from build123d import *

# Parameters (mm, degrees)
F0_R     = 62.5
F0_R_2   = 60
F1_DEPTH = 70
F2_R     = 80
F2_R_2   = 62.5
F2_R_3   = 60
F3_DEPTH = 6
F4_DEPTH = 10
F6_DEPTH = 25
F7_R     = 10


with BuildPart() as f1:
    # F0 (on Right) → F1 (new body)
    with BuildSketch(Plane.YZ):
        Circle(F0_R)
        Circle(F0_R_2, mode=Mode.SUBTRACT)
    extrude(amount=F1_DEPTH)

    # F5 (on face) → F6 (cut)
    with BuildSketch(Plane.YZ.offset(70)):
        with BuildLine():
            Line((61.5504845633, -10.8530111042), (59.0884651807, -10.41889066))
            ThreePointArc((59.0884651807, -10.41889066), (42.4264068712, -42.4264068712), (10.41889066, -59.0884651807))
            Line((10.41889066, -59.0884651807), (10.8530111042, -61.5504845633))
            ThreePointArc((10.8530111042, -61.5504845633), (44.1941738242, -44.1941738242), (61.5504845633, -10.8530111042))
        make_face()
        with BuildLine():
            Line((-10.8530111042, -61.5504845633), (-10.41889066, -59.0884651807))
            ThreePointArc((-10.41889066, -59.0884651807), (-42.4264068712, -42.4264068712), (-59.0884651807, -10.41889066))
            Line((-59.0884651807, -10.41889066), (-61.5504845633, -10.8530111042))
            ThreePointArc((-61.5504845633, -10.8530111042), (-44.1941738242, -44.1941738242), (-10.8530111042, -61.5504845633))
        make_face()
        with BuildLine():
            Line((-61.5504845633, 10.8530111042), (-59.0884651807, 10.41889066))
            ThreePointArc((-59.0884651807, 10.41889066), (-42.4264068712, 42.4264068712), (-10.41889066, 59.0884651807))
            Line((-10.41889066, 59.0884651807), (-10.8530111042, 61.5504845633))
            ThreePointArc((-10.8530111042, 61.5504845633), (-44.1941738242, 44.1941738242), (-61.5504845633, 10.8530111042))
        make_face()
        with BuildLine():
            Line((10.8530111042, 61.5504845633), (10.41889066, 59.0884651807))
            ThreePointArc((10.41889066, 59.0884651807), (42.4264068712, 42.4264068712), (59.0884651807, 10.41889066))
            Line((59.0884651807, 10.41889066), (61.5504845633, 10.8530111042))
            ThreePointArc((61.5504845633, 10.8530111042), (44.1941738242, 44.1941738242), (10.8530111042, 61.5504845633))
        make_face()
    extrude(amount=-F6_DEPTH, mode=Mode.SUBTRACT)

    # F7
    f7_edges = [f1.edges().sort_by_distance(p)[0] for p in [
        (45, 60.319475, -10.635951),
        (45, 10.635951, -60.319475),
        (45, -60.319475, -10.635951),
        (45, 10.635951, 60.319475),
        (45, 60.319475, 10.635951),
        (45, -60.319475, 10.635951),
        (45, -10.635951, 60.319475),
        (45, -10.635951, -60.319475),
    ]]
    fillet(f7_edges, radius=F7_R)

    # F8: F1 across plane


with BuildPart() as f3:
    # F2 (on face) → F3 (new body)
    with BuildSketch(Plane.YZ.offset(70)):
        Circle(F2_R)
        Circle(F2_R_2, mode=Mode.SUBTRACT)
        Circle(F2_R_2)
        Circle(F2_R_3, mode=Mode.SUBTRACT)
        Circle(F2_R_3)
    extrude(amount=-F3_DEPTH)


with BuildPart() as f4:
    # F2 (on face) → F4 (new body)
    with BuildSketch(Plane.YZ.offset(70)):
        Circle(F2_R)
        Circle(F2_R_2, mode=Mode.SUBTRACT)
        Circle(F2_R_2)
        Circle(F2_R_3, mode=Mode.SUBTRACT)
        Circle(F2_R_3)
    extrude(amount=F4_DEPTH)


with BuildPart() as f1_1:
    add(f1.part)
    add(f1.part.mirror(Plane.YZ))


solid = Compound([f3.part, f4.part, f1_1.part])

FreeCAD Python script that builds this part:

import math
import FreeCAD as App
import Part
import Sketcher
Q = App.Units.Quantity


def edges_at(feature, points):
    """Names of the edges that pass closest to the given points."""
    edges = feature.Shape.Edges
    near = lambda p: min(range(len(edges)), key=lambda i: edges[i].distToShape(Part.Vertex(*p))[0])
    return sorted({f"Edge{near(p) + 1}" for p in points})

doc = App.newDocument("Part")
params = doc.addObject("Spreadsheet::Sheet", "Params")
for row, (alias, value) in enumerate([
    ("sketch1_diameter", "125 mm"),
    ("sketch1_diameter2", "120 mm"),
    ("pad1_length", "70 mm"),
    ("sketch2_radius", "60 mm"),
    ("sketch2_radius2", "62.5 mm"),
    ("pocket1_length", "25 mm"),
    ("fillet_radius", "10 mm"),
    ("sketch3_diameter", "160 mm"),
    ("pad2_length", "6 mm"),
    ("sketch4_diameter", "160 mm"),
    ("pad3_length", "10 mm"),
], start=1):
    params.set(f"A{row}", alias)
    params.set(f"B{row}", "=" + value)
    params.setAlias(f"B{row}", alias)

body = doc.addObject("PartDesign::Body", "Body")

# Sketch on YZ plane
sketch1 = doc.addObject("Sketcher::SketchObject", "Sketch")
body.addObject(sketch1)
sketch1.AttachmentSupport = (doc.YZ_Plane, [""])
sketch1.MapMode = "FlatFace"
sketch1.addGeometry([
    Part.Circle(App.Vector(0, 0, 0), App.Vector(0, 0, 1), 62),
    Part.Circle(App.Vector(0, 0, 0), App.Vector(0, 0, 1), 60),
], False)
sketch1.addConstraint([
    Sketcher.Constraint("Coincident", 0, 3, -1, 1),
    Sketcher.Constraint("Coincident", 1, 3, -1, 1),
    Sketcher.Constraint("Diameter", 0, 125.0),
    Sketcher.Constraint("Diameter", 1, 120.0),
])
sketch1.setExpression("Constraints[2]", "Params.sketch1_diameter")
sketch1.setExpression("Constraints[3]", "Params.sketch1_diameter2")
pad1 = doc.addObject("PartDesign::Pad", "Pad")
body.addObject(pad1)
pad1.Profile = sketch1
pad1.setExpression("Length", "Params.pad1_length")

# Sketch on YZ plane
sketch2 = doc.addObject("Sketcher::SketchObject", "Sketch001")
body.addObject(sketch2)
sketch2.AttachmentSupport = (doc.YZ_Plane, [""])
sketch2.MapMode = "FlatFace"
sketch2.AttachmentOffset = App.Placement(App.Vector(0, 0, 70), App.Rotation())
sketch2.addGeometry([
    Part.LineSegment(App.Vector(61.6, -10.9, 0), App.Vector(59.1, -10.4, 0)),  # 0
    Part.ArcOfCircle(Part.Circle(App.Vector(0, 0, 0), App.Vector(0, 0, 1), 60), math.radians(-80), math.radians(-10)),  # 1
    Part.LineSegment(App.Vector(10.4, -59.1, 0), App.Vector(10.9, -61.6, 0)),  # 2
    Part.ArcOfCircle(Part.Circle(App.Vector(0, 0, 0), App.Vector(0, 0, 1), 62.5), math.radians(-80), math.radians(-10)),  # 3
    Part.LineSegment(App.Vector(-10.9, -61.6, 0), App.Vector(-10.4, -59.1, 0)),  # 4
    Part.ArcOfCircle(Part.Circle(App.Vector(0, 0, 0), App.Vector(0, 0, 1), 60), math.radians(-170), math.radians(-100)),  # 5
    Part.LineSegment(App.Vector(-59.1, -10.4, 0), App.Vector(-61.6, -10.9, 0)),  # 6
    Part.ArcOfCircle(Part.Circle(App.Vector(0, 0, 0), App.Vector(0, 0, 1), 62.5), math.radians(-170), math.radians(-100)),  # 7
    Part.LineSegment(App.Vector(-61.6, 10.9, 0), App.Vector(-59.1, 10.4, 0)),  # 8
    Part.ArcOfCircle(Part.Circle(App.Vector(0, 0, 0), App.Vector(0, 0, 1), 60), math.radians(100), math.radians(170)),  # 9
    Part.LineSegment(App.Vector(-10.4, 59.1, 0), App.Vector(-10.9, 61.6, 0)),  # 10
    Part.ArcOfCircle(Part.Circle(App.Vector(0, 0, 0), App.Vector(0, 0, 1), 62.5), math.radians(100), math.radians(170)),  # 11
    Part.LineSegment(App.Vector(10.9, 61.6, 0), App.Vector(10.4, 59.1, 0)),  # 12
    Part.ArcOfCircle(Part.Circle(App.Vector(0, 0, 0), App.Vector(0, 0, 1), 60), math.radians(10), math.radians(80)),  # 13
    Part.LineSegment(App.Vector(59.1, 10.4, 0), App.Vector(61.6, 10.9, 0)),  # 14
    Part.ArcOfCircle(Part.Circle(App.Vector(0, 0, 0), App.Vector(0, 0, 1), 62.5), math.radians(10), math.radians(80)),  # 15
], False)
sketch2.addConstraint([
    Sketcher.Constraint("Coincident", 0, 2, 1, 2),
    Sketcher.Constraint("Coincident", 1, 1, 2, 1),
    Sketcher.Constraint("Coincident", 2, 2, 3, 1),
    Sketcher.Constraint("Coincident", 3, 2, 0, 1),
    Sketcher.Constraint("Coincident", 4, 2, 5, 2),
    Sketcher.Constraint("Coincident", 5, 1, 6, 1),
    Sketcher.Constraint("Coincident", 6, 2, 7, 1),
    Sketcher.Constraint("Coincident", 7, 2, 4, 1),
    Sketcher.Constraint("Coincident", 8, 2, 9, 2),
    Sketcher.Constraint("Coincident", 9, 1, 10, 1),
    Sketcher.Constraint("Coincident", 10, 2, 11, 1),
    Sketcher.Constraint("Coincident", 11, 2, 8, 1),
    Sketcher.Constraint("Coincident", 12, 2, 13, 2),
    Sketcher.Constraint("Coincident", 13, 1, 14, 1),
    Sketcher.Constraint("Coincident", 14, 2, 15, 1),
    Sketcher.Constraint("Coincident", 15, 2, 12, 1),
    Sketcher.Constraint("Coincident", 1, 3, -1, 1),
    Sketcher.Constraint("Coincident", 3, 3, -1, 1),
    Sketcher.Constraint("Coincident", 5, 3, -1, 1),
    Sketcher.Constraint("Coincident", 7, 3, -1, 1),
    Sketcher.Constraint("Coincident", 9, 3, -1, 1),
    Sketcher.Constraint("Coincident", 11, 3, -1, 1),
    Sketcher.Constraint("Coincident", 13, 3, -1, 1),
    Sketcher.Constraint("Coincident", 15, 3, -1, 1),
    Sketcher.Constraint("Equal", 1, 5),
    Sketcher.Constraint("Equal", 3, 7),
    Sketcher.Constraint("Equal", 5, 9),
    Sketcher.Constraint("Equal", 7, 11),
    Sketcher.Constraint("Equal", 9, 13),
    Sketcher.Constraint("Equal", 11, 15),
    Sketcher.Constraint("Perpendicular", 0, 4),
    Sketcher.Constraint("Perpendicular", 2, 6),
    Sketcher.Constraint("Perpendicular", 4, 8),
    Sketcher.Constraint("Perpendicular", 6, 10),
    Sketcher.Constraint("Perpendicular", 8, 12),
    Sketcher.Constraint("Perpendicular", 10, 14),
    Sketcher.Constraint("Horizontal", 1, 1, 4, 2),
    Sketcher.Constraint("Horizontal", 0, 2, 5, 1),
    Sketcher.Constraint("Horizontal", 3, 2, 6, 2),
    Sketcher.Constraint("Horizontal", 9, 1, 12, 2),
    Sketcher.Constraint("Horizontal", 8, 2, 13, 1),
    Sketcher.Constraint("Vertical", 5, 1, 8, 2),
    Sketcher.Constraint("Vertical", 4, 2, 9, 1),
    Sketcher.Constraint("Radius", 1, 60.0),
    Sketcher.Constraint("Radius", 3, 62.5),
    Sketcher.Constraint("Angle", 0, Q("170 deg")),
    Sketcher.Constraint("DistanceX", 4, 2, 2, 2, 21.271902),
    Sketcher.Constraint("DistanceY", 6, 2, 8, 2, 21.271902),
])
sketch2.setExpression("Constraints[43]", "Params.sketch2_radius")
sketch2.setExpression("Constraints[44]", "Params.sketch2_radius2")
pocket1 = doc.addObject("PartDesign::Pocket", "Pocket")
body.addObject(pocket1)
pocket1.Profile = sketch2
pocket1.setExpression("Length", "Params.pocket1_length")
doc.recompute()

fillet = doc.addObject("PartDesign::Fillet", "Fillet")
body.addObject(fillet)
fillet.Base = (pocket1, edges_at(pocket1, [
    (45, 60.319, -10.636),
    (45, 10.636, -60.319),
    (45, -60.319, -10.636),
    (45, 10.636, 60.319),
    (45, 60.319, 10.636),
    (45, -60.319, 10.636),
    (45, -10.636, 60.319),
    (45, -10.636, -60.319),
]))
fillet.setExpression("Radius", "Params.fillet_radius")
body2 = doc.addObject("PartDesign::Body", "Body001")

# Sketch on YZ plane
sketch3 = doc.addObject("Sketcher::SketchObject", "Sketch002")
body2.addObject(sketch3)
sketch3.AttachmentSupport = (doc.getObject("YZ_Plane001"), [""])
sketch3.MapMode = "FlatFace"
sketch3.AttachmentOffset = App.Placement(App.Vector(0, 0, 70), App.Rotation())
sketch3.addGeometry(Part.Circle(App.Vector(0, 0, 0), App.Vector(0, 0, 1), 80), False)
sketch3.addConstraint([
    Sketcher.Constraint("Coincident", 0, 3, -1, 1),
    Sketcher.Constraint("Diameter", 0, 160.0),
])
sketch3.setExpression("Constraints[1]", "Params.sketch3_diameter")
pad2 = doc.addObject("PartDesign::Pad", "Pad001")
body2.addObject(pad2)
pad2.Profile = sketch3
pad2.setExpression("Length", "Params.pad2_length")
pad2.Reversed = True
body3 = doc.addObject("PartDesign::Body", "Body002")

# Sketch on YZ plane
sketch4 = doc.addObject("Sketcher::SketchObject", "Sketch003")
body3.addObject(sketch4)
sketch4.AttachmentSupport = (doc.getObject("YZ_Plane002"), [""])
sketch4.MapMode = "FlatFace"
sketch4.AttachmentOffset = App.Placement(App.Vector(0, 0, 70), App.Rotation())
sketch4.addGeometry(Part.Circle(App.Vector(0, 0, 0), App.Vector(0, 0, 1), 80), False)
sketch4.addConstraint([
    Sketcher.Constraint("Coincident", 0, 3, -1, 1),
    Sketcher.Constraint("Diameter", 0, 160.0),
])
sketch4.setExpression("Constraints[1]", "Params.sketch4_diameter")
pad3 = doc.addObject("PartDesign::Pad", "Pad002")
body3.addObject(pad3)
pad3.Profile = sketch4
pad3.setExpression("Length", "Params.pad3_length")
body4 = doc.addObject("PartDesign::Body", "Body003")
doc.recompute()

body4.BaseFeature = body
doc.recompute()

mirroring = doc.addObject("Part::Mirroring", "Mirroring")
mirroring.Source = body
mirroring.Base = App.Vector(0, 0, 0)
mirroring.Normal = App.Vector(1, 0, 0)
body5 = doc.addObject("PartDesign::Body", "Body004")
body5.BaseFeature = mirroring
boolean = doc.addObject("PartDesign::Boolean", "Boolean")
body4.addObject(boolean)
boolean.Type = "Fuse"
boolean.addObjects([body5])
doc.recompute()
mirroring.Visibility = False

doc.recompute()
